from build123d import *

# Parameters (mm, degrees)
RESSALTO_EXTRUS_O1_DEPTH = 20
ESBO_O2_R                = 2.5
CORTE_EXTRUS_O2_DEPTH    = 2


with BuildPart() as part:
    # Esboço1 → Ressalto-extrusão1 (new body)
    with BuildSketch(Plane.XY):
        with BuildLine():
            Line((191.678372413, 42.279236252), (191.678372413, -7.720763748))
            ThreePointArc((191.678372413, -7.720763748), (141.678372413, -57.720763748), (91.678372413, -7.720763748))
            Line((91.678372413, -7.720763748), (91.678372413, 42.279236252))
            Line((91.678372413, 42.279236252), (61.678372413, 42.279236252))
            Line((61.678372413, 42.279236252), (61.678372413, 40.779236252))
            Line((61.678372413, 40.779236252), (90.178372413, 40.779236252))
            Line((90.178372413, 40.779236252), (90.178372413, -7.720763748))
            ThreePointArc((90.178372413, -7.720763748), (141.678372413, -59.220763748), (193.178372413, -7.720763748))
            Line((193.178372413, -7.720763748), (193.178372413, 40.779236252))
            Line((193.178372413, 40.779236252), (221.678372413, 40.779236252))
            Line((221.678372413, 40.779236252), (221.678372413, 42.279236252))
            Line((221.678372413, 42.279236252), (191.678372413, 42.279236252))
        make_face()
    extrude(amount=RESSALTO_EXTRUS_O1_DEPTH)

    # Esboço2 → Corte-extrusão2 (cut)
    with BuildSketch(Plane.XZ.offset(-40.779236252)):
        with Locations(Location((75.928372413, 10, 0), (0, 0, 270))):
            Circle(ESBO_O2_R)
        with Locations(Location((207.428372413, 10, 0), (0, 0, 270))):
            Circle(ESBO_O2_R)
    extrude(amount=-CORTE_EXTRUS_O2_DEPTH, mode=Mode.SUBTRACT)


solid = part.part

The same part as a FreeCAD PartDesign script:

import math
import FreeCAD as App
import Part
import Sketcher

doc = App.newDocument("Part")
body = doc.addObject("PartDesign::Body", "Body")

# Sketch on XY plane
sketch1 = body.newObject("Sketcher::SketchObject", "Sketch")
sketch1.AttachmentSupport = (doc.getObject("XY_Plane"), [""])
sketch1.MapMode = "FlatFace"
sketch1.addGeometry([
    Part.LineSegment(App.Vector(191.7, 42.3, 0), App.Vector(191.7, -7.7, 0)),  # 0
    Part.ArcOfCircle(Part.Circle(App.Vector(141.7, -7.7, 0), App.Vector(0, 0, 1), 50), math.radians(180), math.radians(360)),  # 1
    Part.LineSegment(App.Vector(91.7, -7.7, 0), App.Vector(91.7, 42.3, 0)),  # 2
    Part.LineSegment(App.Vector(91.7, 42.3, 0), App.Vector(61.7, 42.3, 0)),  # 3
    Part.LineSegment(App.Vector(61.7, 42.3, 0), App.Vector(61.7, 40.8, 0)),  # 4
    Part.LineSegment(App.Vector(61.7, 40.8, 0), App.Vector(90.2, 40.8, 0)),  # 5
    Part.LineSegment(App.Vector(90.2, 40.8, 0), App.Vector(90.2, -7.7, 0)),  # 6
    Part.ArcOfCircle(Part.Circle(App.Vector(141.7, -7.7, 0), App.Vector(0, 0, 1), 51.5), math.radians(180), math.radians(360)),  # 7
    Part.LineSegment(App.Vector(193.2, -7.7, 0), App.Vector(193.2, 40.8, 0)),  # 8
    Part.LineSegment(App.Vector(193.2, 40.8, 0), App.Vector(221.7, 40.8, 0)),  # 9
    Part.LineSegment(App.Vector(221.7, 40.8, 0), App.Vector(221.7, 42.3, 0)),  # 10
    Part.LineSegment(App.Vector(221.7, 42.3, 0), App.Vector(191.7, 42.3, 0)),  # 11
], False)
sketch1.addConstraint([
    Sketcher.Constraint("Tangent", 0, 2, 1, 2),
    Sketcher.Constraint("Tangent", 1, 1, 2, 1),
    Sketcher.Constraint("Coincident", 2, 2, 3, 1),
    Sketcher.Constraint("Coincident", 3, 2, 4, 1),
    Sketcher.Constraint("Coincident", 4, 2, 5, 1),
    Sketcher.Constraint("Coincident", 5, 2, 6, 1),
    Sketcher.Constraint("Tangent", 6, 2, 7, 1),
    Sketcher.Constraint("Tangent", 7, 2, 8, 1),
    Sketcher.Constraint("Coincident", 8, 2, 9, 1),
    Sketcher.Constraint("Coincident", 9, 2, 10, 1),
    Sketcher.Constraint("Coincident", 10, 2, 11, 1),
    Sketcher.Constraint("Coincident", 11, 2, 0, 1),
    Sketcher.Constraint("Vertical", 0),
    Sketcher.Constraint("Vertical", 2),
    Sketcher.Constraint("Horizontal", 3),
    Sketcher.Constraint("Vertical", 4),
    Sketcher.Constraint("Horizontal", 5),
    Sketcher.Constraint("Vertical", 6),
    Sketcher.Constraint("Vertical", 8),
    Sketcher.Constraint("Horizontal", 9),
    Sketcher.Constraint("Vertical", 10),
    Sketcher.Constraint("Horizontal", 11),
    Sketcher.Constraint("Coincident", 7, 3, 1, 3),
    Sketcher.Constraint("Horizontal", 5, 2, 8, 2),
    Sketcher.Constraint("Horizontal", 3, 2, 10, 2),
    Sketcher.Constraint("Equal", 5, 9),
    Sketcher.Constraint("Radius", 1, 50.0),
    Sketcher.Constraint("Radius", 7, 51.5),
    Sketcher.Constraint("DistanceX", 3, 2, 3, 1, 30.0),
    Sketcher.Constraint("DistanceY", 0, 2, 0, 1, 50.0),
    Sketcher.Constraint("DistanceY", 4, 2, 4, 1, 1.5),
    Sketcher.Constraint("DistanceX", -1, 1, 1, 3, 141.678372),
    Sketcher.Constraint("DistanceY", 1, 3, -1, 1, 7.720764),
])
pad1 = body.newObject("PartDesign::Pad", "Pad")
pad1.Profile = sketch1
pad1.Length = 20

# Sketch on XZ plane
sketch2 = body.newObject("Sketcher::SketchObject", "Sketch001")
sketch2.AttachmentSupport = (doc.getObject("XZ_Plane"), [""])
sketch2.MapMode = "FlatFace"
sketch2.AttachmentOffset = App.Placement(App.Vector(0, 0, -40.779236), App.Rotation())
sketch2.addGeometry([
    Part.Circle(App.Vector(75.9, 10, 0), App.Vector(0, 0, 1), 2.5),
    Part.Circle(App.Vector(207.4, 10, 0), App.Vector(0, 0, 1), 2.5),
], False)
sketch2.addConstraint([
    Sketcher.Constraint("Equal", 0, 1),
    Sketcher.Constraint("Horizontal", 0, 3, 1, 3),
    Sketcher.Constraint("Diameter", 0, 5.0),
    Sketcher.Constraint("DistanceY", -1, 1, 0, 3, 10.0),
    Sketcher.Constraint("DistanceX", 0, 3, 1, 3, 131.5),
    Sketcher.Constraint("DistanceX", -1, 1, 0, 3, 75.928372),
])
pocket1 = body.newObject("PartDesign::Pocket", "Pocket")
pocket1.Profile = sketch2
pocket1.Length = 2

doc.recompute()
